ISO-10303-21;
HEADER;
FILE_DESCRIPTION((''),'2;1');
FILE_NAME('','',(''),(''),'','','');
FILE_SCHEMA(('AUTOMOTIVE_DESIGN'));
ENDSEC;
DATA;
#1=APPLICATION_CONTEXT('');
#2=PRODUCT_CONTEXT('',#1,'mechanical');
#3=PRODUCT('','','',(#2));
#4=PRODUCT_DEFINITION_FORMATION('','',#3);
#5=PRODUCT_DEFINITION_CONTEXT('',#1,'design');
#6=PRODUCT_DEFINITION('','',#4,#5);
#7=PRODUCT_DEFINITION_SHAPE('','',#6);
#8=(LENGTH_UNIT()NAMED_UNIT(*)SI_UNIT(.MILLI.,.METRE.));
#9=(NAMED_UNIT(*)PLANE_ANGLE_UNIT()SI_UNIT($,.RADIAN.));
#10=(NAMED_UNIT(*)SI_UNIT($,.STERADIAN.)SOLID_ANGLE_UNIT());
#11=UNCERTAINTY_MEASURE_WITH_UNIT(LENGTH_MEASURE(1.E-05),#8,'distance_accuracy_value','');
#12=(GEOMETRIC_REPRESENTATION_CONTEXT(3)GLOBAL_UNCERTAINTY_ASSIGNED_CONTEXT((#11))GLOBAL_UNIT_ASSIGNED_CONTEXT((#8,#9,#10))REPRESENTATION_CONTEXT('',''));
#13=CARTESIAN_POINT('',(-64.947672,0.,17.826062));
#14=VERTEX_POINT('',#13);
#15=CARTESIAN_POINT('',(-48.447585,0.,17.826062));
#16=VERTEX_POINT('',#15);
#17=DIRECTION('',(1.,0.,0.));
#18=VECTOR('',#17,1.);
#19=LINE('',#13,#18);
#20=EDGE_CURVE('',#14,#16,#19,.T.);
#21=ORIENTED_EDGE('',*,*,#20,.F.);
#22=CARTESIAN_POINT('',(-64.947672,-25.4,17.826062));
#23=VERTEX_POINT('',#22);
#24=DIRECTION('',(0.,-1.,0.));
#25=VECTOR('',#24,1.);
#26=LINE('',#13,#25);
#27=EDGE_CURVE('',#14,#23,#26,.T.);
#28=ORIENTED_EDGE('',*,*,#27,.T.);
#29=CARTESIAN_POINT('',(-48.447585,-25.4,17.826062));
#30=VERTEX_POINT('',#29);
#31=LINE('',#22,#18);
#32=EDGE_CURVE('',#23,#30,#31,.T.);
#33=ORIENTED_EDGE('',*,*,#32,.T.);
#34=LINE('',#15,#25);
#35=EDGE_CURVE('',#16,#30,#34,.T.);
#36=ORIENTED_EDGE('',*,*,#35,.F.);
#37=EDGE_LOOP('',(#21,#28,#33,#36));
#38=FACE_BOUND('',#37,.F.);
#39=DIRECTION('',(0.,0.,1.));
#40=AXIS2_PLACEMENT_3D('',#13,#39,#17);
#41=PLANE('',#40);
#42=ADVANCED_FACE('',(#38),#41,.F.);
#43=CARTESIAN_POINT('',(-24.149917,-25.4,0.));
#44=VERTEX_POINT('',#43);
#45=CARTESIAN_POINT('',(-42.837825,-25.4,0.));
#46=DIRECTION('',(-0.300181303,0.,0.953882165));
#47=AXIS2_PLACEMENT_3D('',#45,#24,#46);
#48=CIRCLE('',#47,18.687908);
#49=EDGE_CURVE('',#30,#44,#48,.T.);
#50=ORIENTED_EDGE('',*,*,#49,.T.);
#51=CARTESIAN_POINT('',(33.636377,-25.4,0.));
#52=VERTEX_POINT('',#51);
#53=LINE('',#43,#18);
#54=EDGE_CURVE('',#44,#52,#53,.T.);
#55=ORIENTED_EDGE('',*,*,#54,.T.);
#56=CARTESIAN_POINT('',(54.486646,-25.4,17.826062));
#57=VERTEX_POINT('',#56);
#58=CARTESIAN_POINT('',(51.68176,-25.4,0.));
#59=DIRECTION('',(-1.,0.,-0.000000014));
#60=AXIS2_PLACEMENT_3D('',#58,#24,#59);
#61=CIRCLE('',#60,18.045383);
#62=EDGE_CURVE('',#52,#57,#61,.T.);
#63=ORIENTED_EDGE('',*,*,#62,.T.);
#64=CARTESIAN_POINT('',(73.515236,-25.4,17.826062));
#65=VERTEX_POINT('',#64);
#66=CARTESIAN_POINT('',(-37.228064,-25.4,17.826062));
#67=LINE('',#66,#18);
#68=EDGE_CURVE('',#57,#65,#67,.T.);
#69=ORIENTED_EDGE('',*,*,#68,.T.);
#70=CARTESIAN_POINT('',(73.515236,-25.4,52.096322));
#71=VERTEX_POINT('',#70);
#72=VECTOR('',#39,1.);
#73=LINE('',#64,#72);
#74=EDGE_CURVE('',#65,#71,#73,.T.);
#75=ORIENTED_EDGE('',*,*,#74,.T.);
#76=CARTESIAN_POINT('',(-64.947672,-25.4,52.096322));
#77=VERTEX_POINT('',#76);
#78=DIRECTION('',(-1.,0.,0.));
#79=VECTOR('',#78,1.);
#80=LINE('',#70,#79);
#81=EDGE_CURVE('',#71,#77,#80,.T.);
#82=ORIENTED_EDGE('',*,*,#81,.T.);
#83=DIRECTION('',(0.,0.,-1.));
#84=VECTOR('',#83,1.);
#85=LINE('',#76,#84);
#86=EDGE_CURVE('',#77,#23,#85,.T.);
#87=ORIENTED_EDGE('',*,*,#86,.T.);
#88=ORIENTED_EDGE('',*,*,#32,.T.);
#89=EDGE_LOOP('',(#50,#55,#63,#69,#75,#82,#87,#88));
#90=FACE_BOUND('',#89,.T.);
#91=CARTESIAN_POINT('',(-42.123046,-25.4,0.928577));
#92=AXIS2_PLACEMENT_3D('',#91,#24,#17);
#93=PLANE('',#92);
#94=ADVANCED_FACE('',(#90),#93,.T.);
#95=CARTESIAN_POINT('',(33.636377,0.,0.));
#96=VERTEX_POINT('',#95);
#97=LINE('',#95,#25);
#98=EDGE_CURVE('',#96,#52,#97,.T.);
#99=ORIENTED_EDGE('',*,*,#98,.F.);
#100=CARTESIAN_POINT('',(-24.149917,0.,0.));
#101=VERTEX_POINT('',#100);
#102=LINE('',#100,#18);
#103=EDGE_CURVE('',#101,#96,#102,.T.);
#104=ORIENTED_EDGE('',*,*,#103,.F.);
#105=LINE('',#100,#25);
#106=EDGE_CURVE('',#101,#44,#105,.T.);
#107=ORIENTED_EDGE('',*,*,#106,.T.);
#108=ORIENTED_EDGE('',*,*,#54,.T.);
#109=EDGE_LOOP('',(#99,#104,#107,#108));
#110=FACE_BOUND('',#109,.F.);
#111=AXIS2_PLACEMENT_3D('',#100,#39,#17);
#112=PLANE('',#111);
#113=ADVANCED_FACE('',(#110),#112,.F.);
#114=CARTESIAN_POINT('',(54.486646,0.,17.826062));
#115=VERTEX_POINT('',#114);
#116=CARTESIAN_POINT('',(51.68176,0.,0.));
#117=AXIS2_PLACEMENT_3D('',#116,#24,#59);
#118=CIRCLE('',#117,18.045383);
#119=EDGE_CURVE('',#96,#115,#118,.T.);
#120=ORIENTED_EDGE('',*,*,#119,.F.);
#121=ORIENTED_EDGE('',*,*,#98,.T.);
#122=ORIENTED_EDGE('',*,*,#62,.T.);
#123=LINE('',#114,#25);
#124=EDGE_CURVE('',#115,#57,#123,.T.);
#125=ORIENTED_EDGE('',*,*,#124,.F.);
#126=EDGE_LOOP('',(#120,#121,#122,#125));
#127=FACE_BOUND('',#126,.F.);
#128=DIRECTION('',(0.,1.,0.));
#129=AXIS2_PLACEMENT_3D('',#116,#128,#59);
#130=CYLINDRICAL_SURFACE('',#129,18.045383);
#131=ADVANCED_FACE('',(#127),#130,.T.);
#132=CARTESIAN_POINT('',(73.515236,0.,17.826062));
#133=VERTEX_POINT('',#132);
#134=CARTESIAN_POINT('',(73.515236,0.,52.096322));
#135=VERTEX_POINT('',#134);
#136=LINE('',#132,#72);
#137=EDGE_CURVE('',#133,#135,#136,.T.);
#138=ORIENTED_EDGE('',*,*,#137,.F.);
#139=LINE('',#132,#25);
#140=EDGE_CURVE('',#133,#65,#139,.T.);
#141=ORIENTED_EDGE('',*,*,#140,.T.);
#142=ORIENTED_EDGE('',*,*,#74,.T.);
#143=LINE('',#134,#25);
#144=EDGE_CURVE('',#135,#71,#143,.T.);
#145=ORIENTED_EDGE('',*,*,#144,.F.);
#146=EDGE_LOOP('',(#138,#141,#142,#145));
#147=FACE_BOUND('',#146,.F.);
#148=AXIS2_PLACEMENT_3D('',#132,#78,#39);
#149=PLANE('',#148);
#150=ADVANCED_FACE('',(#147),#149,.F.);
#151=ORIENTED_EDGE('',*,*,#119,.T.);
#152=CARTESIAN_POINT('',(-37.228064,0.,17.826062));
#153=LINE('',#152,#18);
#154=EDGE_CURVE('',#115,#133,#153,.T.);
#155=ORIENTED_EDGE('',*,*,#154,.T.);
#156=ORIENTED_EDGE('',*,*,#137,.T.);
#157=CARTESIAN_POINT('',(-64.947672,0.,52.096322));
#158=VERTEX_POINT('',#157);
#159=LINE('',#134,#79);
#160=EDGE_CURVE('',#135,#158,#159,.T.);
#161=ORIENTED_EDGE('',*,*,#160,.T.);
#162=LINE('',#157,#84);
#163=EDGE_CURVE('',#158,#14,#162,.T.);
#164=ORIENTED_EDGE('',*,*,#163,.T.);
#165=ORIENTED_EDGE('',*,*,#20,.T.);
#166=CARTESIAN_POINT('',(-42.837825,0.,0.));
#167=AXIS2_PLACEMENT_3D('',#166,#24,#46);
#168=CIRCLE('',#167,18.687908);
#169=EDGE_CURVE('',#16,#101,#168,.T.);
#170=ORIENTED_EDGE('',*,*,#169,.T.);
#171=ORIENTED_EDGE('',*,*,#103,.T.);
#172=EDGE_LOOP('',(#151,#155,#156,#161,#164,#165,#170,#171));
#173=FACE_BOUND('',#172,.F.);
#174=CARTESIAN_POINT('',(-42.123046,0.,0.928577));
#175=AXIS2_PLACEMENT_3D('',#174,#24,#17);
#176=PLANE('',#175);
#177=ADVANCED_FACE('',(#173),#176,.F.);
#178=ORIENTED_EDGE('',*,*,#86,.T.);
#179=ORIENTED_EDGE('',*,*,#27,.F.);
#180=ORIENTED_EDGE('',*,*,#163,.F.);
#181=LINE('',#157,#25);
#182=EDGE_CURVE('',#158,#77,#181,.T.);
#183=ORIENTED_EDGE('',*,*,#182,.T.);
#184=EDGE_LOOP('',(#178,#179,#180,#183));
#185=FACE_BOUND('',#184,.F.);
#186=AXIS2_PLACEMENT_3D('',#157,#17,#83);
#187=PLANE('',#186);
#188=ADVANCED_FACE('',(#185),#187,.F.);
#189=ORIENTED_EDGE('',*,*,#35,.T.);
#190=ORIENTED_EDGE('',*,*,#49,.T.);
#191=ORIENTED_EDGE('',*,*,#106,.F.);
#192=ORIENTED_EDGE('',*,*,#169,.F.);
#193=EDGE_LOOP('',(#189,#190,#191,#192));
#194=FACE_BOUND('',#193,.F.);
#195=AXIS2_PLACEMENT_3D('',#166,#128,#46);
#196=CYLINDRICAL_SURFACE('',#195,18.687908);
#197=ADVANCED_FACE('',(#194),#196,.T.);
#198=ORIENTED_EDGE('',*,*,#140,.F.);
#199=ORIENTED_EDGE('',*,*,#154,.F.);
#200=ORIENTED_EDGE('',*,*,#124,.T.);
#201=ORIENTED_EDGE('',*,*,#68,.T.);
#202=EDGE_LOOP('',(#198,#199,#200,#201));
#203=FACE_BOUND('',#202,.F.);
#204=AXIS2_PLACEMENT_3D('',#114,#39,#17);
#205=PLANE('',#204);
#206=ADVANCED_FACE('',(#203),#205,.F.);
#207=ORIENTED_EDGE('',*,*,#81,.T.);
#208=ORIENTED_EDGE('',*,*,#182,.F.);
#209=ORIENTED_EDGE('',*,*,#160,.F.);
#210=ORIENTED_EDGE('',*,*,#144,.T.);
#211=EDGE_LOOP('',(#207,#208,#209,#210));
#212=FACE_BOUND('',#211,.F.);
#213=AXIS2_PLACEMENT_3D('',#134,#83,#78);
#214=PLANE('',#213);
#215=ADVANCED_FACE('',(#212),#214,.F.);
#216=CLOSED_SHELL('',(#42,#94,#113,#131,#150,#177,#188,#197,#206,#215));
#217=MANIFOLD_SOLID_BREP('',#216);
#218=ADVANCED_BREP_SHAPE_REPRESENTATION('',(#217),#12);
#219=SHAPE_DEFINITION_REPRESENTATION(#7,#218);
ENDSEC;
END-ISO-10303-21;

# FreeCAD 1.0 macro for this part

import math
import FreeCAD as App
import Part
import Sketcher
from FreeCAD import Vector
Q = App.Units.Quantity

doc = App.newDocument("Part")
body = doc.addObject("PartDesign::Body", "Body")

# Sketch on XZ plane
sketch1 = doc.addObject("Sketcher::SketchObject", "Sketch")
body.addObject(sketch1)
sketch1.AttachmentSupport = (doc.XZ_Plane, [""])
sketch1.MapMode = "FlatFace"
sketch1.addGeometry([
    Part.ArcOfCircle(Part.Circle(Vector(-42.837825, 0, 0), Vector(0, 0, 1), 18.687908), math.radians(107.468493), math.radians(359.999999)),  # 0
    Part.LineSegment(Vector(-24.149917, 0, 0), Vector(33.636377, 0, 0)),  # 1
    Part.ArcOfCircle(Part.Circle(Vector(51.68176, 0, 0), Vector(0, 0, 1), 18.045383), math.radians(-179.999999), math.radians(81.05797)),  # 2
    Part.LineSegment(Vector(54.486646, 17.826062, 0), Vector(73.515236, 17.826062, 0)),  # 3
    Part.LineSegment(Vector(73.515236, 17.826062, 0), Vector(73.515236, 52.096322, 0)),  # 4
    Part.LineSegment(Vector(73.515236, 52.096322, 0), Vector(-64.947672, 52.096322, 0)),  # 5
    Part.LineSegment(Vector(-64.947672, 52.096322, 0), Vector(-64.947672, 17.826062, 0)),  # 6
    Part.LineSegment(Vector(-64.947672, 17.826062, 0), Vector(-48.447585, 17.826062, 0)),  # 7
], False)
sketch1.addConstraint([
    Sketcher.Constraint("Coincident", 0, 2, 1, 1),
    Sketcher.Constraint("Coincident", 1, 2, 2, 1),
    Sketcher.Constraint("Coincident", 2, 2, 3, 1),
    Sketcher.Constraint("Coincident", 3, 2, 4, 1),
    Sketcher.Constraint("Coincident", 4, 2, 5, 1),
    Sketcher.Constraint("Coincident", 5, 2, 6, 1),
    Sketcher.Constraint("Coincident", 6, 2, 7, 1),
    Sketcher.Constraint("Coincident", 7, 2, 0, 1),
    Sketcher.Constraint("Horizontal", 1),
    Sketcher.Constraint("Horizontal", 3),
    Sketcher.Constraint("Vertical", 4),
    Sketcher.Constraint("Horizontal", 5),
    Sketcher.Constraint("Vertical", 6),
    Sketcher.Constraint("Horizontal", 7),
    Sketcher.Constraint("PointOnObject", 0, 3, -1),
    Sketcher.Constraint("PointOnObject", 2, 3, -1),
    Sketcher.Constraint("PointOnObject", 0, 2, -1),
    Sketcher.Constraint("Horizontal", 3, 2, 6, 2),
    Sketcher.Constraint("Radius", 0, 18.687908),
    Sketcher.Constraint("Radius", 2, 18.045383),
    Sketcher.Constraint("DistanceX", 3, 1, 3, 2, 19.02859),
    Sketcher.Constraint("DistanceX", 5, 2, 5, 1, 138.462908),
    Sketcher.Constraint("DistanceY", 4, 1, 4, 2, 34.27026),
    Sketcher.Constraint("DistanceX", 0, 3, 1, 2, 76.474202),
    Sketcher.Constraint("DistanceX", 7, 1, 7, 2, 16.500087),
    Sketcher.Constraint("DistanceX", -1, 1, 2, 3, 51.68176),
])
pad1 = doc.addObject("PartDesign::Pad", "Pad")
body.addObject(pad1)
pad1.Profile = sketch1
pad1.Length = Q("1 in")

doc.recompute()
